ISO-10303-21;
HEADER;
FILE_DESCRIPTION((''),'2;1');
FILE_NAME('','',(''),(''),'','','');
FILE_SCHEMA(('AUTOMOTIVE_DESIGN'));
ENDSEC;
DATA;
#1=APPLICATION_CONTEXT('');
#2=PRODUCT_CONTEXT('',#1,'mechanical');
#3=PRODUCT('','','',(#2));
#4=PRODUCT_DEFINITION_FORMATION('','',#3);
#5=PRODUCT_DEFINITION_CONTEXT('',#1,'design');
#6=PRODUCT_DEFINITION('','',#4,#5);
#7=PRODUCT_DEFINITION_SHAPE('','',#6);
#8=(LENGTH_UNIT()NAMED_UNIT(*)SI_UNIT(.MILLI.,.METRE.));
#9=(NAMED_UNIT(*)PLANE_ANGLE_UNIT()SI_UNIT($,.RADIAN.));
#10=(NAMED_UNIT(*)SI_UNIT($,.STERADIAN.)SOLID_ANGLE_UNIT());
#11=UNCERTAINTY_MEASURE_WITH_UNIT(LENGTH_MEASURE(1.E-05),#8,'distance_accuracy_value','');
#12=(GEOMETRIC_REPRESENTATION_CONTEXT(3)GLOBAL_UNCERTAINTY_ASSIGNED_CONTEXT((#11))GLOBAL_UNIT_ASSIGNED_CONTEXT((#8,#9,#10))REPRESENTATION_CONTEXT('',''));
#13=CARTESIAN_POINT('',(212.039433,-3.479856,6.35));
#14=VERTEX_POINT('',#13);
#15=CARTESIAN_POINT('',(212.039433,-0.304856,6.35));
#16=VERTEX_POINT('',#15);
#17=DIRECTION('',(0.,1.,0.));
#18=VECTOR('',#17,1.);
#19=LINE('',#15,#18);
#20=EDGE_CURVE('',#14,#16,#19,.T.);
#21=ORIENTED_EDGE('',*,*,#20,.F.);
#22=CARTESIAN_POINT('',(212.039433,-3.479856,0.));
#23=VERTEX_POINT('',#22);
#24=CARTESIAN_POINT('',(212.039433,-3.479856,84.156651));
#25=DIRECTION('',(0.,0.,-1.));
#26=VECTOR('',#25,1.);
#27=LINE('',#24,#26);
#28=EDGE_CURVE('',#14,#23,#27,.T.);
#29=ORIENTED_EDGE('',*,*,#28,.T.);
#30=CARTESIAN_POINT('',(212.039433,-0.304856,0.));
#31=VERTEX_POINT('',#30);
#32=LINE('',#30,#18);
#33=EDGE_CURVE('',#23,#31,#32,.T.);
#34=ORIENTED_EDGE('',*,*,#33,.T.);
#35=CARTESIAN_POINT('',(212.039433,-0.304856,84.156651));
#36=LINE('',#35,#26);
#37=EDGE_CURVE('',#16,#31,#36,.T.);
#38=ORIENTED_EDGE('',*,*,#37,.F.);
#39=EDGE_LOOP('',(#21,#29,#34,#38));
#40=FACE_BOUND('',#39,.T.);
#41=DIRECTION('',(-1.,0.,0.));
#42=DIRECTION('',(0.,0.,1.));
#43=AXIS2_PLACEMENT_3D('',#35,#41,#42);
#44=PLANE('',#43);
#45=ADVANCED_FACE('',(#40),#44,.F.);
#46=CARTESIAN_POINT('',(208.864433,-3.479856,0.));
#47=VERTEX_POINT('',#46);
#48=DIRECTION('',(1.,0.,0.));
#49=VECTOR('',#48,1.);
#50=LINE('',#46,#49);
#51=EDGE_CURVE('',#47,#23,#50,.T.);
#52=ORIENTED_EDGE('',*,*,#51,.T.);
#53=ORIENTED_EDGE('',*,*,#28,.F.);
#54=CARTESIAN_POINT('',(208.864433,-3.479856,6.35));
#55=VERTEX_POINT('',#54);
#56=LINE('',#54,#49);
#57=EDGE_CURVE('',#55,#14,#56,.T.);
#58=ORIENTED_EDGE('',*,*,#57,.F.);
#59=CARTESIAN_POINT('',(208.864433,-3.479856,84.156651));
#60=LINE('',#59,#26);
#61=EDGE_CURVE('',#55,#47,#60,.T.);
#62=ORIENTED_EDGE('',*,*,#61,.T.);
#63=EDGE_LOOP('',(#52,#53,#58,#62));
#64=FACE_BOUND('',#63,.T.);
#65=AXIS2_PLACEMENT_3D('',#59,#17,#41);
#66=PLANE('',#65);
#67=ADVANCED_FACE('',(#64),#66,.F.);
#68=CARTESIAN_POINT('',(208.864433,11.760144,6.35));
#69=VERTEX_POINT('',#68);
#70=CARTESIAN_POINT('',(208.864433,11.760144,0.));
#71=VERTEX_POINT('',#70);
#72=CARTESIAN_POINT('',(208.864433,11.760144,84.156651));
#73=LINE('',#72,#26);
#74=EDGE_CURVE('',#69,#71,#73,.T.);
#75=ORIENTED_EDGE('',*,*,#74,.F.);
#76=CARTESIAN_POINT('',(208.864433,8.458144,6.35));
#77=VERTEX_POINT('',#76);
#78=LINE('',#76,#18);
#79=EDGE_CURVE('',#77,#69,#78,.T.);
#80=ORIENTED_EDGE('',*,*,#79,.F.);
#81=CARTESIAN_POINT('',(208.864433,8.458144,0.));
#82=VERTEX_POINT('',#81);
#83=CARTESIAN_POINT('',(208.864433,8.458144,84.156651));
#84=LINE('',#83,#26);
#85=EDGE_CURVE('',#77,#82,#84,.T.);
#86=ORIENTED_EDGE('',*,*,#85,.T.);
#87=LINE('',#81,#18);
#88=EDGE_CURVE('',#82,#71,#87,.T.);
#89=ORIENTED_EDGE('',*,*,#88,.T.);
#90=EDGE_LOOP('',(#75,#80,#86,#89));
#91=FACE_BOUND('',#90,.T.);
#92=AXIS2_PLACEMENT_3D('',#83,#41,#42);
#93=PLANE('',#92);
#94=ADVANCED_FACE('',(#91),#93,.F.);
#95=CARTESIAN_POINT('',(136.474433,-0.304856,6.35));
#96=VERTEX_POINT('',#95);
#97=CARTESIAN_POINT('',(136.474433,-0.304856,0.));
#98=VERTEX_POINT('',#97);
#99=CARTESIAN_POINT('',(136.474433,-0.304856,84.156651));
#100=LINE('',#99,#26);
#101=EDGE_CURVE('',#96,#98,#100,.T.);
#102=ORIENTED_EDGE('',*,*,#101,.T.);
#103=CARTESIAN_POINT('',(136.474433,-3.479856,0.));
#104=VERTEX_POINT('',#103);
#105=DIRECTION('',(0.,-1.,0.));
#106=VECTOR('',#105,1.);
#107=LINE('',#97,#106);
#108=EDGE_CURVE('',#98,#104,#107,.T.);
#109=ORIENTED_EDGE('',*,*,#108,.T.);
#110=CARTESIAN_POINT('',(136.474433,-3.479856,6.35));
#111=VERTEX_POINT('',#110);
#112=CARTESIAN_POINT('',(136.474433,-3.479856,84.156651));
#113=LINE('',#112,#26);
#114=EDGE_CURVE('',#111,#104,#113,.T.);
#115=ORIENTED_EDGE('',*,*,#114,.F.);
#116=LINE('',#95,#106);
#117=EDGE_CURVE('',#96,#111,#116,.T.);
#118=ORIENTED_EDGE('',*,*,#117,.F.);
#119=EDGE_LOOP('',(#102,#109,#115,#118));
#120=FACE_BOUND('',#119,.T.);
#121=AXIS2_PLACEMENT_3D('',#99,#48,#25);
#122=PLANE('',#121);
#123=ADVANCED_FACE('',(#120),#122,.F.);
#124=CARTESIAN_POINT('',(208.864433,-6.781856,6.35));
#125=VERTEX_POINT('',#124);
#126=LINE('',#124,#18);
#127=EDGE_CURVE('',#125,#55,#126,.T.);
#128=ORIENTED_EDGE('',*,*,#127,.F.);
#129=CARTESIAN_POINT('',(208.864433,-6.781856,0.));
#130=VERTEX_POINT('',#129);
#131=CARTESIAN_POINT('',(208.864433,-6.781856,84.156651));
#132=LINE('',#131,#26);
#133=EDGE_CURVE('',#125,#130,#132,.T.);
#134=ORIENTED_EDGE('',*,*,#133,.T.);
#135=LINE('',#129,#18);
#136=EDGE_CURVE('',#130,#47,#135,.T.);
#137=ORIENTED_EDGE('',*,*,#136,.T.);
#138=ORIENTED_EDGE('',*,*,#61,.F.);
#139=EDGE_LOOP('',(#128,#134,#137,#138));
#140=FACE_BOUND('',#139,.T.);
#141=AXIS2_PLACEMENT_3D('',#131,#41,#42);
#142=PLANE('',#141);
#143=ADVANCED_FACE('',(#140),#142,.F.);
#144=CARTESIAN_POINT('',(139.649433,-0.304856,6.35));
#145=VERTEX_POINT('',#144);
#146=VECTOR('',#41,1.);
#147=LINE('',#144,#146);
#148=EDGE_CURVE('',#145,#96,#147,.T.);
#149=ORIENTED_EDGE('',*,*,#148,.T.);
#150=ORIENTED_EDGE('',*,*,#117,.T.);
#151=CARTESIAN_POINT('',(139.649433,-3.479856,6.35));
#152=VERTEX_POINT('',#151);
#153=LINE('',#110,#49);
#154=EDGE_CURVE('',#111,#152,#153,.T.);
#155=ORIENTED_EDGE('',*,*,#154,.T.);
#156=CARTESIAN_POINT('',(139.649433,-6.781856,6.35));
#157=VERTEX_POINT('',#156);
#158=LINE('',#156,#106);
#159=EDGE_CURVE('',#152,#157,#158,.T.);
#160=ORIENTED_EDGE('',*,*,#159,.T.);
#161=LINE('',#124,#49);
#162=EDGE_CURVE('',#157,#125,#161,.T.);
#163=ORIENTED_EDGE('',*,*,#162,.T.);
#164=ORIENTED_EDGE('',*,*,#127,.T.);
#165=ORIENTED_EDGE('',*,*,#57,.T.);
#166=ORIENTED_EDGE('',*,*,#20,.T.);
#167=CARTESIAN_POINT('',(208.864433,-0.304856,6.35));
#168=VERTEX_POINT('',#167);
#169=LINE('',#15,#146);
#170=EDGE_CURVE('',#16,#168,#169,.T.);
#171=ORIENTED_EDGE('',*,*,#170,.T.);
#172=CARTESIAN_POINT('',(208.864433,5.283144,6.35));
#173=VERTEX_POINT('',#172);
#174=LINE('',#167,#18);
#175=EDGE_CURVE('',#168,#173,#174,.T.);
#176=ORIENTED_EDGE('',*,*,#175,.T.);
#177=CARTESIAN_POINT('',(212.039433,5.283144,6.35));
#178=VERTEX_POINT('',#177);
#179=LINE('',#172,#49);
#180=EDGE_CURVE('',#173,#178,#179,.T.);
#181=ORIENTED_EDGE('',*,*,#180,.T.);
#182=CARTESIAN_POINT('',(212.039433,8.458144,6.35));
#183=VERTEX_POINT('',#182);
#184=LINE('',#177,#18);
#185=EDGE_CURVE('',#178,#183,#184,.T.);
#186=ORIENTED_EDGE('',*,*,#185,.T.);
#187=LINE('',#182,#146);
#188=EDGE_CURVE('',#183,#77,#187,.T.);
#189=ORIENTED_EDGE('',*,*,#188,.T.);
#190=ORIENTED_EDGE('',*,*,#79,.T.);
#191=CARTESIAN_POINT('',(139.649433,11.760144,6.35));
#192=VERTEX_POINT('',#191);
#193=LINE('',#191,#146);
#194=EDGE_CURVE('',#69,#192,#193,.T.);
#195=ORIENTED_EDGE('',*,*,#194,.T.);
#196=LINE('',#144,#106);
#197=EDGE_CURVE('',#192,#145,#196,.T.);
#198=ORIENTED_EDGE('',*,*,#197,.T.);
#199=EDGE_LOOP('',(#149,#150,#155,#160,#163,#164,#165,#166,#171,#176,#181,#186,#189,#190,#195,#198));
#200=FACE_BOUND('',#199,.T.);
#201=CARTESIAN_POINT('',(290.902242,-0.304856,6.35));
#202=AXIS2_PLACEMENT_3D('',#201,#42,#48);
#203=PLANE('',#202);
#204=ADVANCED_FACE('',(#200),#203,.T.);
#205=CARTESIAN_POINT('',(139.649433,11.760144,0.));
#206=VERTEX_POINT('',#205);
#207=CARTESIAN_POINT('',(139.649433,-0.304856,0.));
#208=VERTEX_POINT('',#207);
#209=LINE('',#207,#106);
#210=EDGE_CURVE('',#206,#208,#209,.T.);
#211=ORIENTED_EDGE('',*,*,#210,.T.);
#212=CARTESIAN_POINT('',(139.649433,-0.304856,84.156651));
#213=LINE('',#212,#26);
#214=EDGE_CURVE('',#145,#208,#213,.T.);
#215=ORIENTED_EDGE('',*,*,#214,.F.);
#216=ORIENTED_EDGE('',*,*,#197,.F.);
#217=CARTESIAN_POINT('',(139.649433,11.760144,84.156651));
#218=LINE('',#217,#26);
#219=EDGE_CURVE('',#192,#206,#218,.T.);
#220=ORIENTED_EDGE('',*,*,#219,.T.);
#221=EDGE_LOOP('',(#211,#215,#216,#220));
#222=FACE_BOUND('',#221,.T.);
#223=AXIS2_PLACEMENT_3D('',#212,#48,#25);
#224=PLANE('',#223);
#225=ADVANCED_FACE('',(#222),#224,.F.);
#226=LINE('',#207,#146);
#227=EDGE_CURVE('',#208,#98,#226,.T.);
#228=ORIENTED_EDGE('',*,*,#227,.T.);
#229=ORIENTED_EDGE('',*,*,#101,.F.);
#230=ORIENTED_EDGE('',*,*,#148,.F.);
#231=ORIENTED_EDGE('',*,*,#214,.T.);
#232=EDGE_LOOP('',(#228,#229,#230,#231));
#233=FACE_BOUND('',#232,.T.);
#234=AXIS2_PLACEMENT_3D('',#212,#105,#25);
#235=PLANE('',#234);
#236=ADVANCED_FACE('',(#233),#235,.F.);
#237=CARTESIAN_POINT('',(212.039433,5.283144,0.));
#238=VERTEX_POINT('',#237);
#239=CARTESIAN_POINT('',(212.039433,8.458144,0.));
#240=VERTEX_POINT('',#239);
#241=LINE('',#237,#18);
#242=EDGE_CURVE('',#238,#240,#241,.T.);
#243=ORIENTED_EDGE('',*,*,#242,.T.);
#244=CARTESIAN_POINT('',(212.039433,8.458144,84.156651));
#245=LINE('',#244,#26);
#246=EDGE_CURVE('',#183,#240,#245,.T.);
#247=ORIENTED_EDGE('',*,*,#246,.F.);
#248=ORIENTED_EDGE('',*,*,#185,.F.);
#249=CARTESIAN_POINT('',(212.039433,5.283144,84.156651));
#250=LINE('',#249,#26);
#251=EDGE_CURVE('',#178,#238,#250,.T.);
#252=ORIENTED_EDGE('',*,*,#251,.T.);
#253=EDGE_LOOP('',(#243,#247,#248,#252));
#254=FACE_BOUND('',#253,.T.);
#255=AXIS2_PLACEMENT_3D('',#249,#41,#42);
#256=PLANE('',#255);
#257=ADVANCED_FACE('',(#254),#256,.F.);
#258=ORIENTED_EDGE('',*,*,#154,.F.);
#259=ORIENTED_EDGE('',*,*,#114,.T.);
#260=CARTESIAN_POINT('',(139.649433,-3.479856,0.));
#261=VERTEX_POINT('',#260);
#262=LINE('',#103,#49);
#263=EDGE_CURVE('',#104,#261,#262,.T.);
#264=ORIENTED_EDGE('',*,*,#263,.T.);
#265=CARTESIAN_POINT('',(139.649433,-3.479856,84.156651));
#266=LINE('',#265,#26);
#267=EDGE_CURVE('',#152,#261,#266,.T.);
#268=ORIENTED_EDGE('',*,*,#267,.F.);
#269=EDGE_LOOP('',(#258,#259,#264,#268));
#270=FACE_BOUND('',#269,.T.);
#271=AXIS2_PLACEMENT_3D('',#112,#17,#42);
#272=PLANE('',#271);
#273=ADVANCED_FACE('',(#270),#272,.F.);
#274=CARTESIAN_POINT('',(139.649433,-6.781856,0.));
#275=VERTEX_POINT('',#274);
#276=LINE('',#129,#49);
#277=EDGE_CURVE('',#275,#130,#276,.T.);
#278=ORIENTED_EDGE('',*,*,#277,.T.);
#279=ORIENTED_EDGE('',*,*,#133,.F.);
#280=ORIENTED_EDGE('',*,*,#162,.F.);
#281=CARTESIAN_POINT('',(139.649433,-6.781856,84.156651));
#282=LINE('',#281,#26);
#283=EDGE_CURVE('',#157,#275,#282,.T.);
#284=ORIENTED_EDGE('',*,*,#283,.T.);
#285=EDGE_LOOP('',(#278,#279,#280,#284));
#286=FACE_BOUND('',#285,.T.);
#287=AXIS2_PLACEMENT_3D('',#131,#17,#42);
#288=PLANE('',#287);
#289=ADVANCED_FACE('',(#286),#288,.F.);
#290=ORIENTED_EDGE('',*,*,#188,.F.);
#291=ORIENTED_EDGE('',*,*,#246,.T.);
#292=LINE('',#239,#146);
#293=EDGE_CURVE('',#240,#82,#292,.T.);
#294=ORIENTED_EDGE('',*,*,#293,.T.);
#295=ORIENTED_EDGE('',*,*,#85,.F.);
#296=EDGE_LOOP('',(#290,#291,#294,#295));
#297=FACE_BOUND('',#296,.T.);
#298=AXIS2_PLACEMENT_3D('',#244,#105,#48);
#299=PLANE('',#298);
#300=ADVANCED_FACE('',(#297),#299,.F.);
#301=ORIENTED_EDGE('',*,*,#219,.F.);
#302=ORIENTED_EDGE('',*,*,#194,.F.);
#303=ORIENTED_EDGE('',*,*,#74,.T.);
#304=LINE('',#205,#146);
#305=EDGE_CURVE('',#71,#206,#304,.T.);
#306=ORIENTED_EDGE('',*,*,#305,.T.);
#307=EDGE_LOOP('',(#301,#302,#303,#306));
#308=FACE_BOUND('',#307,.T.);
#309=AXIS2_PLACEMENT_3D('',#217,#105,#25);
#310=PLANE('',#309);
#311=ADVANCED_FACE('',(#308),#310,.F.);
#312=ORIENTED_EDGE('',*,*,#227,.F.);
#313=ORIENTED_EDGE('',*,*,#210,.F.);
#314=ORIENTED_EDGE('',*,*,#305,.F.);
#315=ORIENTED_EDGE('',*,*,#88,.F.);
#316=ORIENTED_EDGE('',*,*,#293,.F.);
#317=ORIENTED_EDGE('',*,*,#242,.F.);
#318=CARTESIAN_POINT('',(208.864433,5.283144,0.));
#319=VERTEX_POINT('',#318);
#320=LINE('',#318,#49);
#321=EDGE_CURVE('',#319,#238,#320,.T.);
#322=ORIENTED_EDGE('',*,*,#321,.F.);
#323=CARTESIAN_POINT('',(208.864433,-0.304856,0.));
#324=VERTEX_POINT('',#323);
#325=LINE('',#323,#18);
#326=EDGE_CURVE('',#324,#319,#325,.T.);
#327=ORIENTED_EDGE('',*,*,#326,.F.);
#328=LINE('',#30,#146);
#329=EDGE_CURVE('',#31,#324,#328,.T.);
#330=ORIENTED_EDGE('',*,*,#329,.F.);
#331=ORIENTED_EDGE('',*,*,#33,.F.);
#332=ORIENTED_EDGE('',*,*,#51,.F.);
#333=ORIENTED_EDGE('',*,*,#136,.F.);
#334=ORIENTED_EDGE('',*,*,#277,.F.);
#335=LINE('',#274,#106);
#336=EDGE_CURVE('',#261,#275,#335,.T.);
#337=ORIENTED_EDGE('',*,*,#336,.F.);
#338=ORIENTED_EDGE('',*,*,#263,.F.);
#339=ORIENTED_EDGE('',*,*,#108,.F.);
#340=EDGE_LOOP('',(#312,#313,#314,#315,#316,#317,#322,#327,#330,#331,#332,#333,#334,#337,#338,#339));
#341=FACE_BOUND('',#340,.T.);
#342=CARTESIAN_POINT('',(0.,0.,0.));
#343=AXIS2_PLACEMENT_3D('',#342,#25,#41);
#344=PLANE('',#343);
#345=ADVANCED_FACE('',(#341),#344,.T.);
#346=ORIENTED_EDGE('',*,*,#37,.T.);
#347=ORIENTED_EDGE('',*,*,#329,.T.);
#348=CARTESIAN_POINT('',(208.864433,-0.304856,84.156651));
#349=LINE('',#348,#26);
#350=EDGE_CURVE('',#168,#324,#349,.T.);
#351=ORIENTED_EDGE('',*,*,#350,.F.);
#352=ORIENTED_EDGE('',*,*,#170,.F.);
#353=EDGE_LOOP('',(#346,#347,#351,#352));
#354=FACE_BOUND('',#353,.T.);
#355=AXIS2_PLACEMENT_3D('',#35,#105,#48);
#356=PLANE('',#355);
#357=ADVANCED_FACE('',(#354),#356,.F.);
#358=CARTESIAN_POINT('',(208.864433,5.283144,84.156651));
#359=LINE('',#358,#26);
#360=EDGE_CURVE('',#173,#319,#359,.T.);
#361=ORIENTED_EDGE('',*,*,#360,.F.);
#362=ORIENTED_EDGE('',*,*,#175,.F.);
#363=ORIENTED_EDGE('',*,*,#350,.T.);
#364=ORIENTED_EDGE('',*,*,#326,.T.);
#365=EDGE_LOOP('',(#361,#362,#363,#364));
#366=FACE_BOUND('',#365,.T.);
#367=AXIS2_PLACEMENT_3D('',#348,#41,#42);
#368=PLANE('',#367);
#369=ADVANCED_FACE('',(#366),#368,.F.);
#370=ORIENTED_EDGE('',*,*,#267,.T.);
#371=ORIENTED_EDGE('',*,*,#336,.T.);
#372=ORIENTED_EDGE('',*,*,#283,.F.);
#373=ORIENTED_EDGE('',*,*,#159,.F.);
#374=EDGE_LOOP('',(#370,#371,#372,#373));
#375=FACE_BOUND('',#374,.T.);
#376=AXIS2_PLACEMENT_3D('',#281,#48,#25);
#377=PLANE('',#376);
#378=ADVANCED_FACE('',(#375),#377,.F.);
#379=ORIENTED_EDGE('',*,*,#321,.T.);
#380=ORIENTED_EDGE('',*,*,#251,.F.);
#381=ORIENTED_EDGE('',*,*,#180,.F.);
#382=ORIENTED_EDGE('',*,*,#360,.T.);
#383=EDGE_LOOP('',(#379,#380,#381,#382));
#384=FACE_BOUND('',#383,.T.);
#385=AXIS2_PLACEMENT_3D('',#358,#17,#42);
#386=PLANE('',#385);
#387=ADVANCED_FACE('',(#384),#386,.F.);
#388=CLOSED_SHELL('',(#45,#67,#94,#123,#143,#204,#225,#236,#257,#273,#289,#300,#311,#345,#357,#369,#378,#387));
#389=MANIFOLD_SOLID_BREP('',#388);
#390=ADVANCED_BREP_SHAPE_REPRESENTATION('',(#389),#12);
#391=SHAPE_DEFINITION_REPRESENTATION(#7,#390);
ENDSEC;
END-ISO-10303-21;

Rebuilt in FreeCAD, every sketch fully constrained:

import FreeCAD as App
import Part
import Sketcher
Q = App.Units.Quantity


def add_polygon(sketch, points):
    """Adds a closed chain of lines whose ends are joined by coincident constraints."""
    first, n = sketch.GeometryCount, len(points)
    for a, b in zip(points, points[1:] + points[:1]):
        sketch.addGeometry(Part.LineSegment(App.Vector(*a, 0), App.Vector(*b, 0)), False)
    for i in range(n):
        sketch.addConstraint(Sketcher.Constraint("Coincident", first + i, 2, first + (i + 1) % n, 1))

doc = App.newDocument("Part")
body = doc.addObject("PartDesign::Body", "Body")

# Sketch on XY plane
sketch1 = body.newObject("Sketcher::SketchObject", "Sketch")
sketch1.AttachmentSupport = (doc.getObject("XY_Plane"), [""])
sketch1.MapMode = "FlatFace"
add_polygon(sketch1, [(208.9, -3.5), (212, -3.5), (212, -0.3), (208.9, -0.3), (208.9, 5.3), (212, 5.3), (212, 8.5), (208.9, 8.5), (208.9, 11.8), (139.6, 11.8), (139.6, -0.3), (136.5, -0.3), (136.5, -3.5), (139.6, -3.5), (139.6, -6.8), (208.9, -6.8)])  # lines 0-15
sketch1.addConstraint([
    Sketcher.Constraint("Horizontal", 0),
    Sketcher.Constraint("Vertical", 1),
    Sketcher.Constraint("Horizontal", 2),
    Sketcher.Constraint("Vertical", 3),
    Sketcher.Constraint("Horizontal", 4),
    Sketcher.Constraint("Vertical", 5),
    Sketcher.Constraint("Horizontal", 6),
    Sketcher.Constraint("Vertical", 7),
    Sketcher.Constraint("Horizontal", 8),
    Sketcher.Constraint("Vertical", 9),
    Sketcher.Constraint("Horizontal", 10),
    Sketcher.Constraint("Vertical", 11),
    Sketcher.Constraint("Horizontal", 12),
    Sketcher.Constraint("Vertical", 13),
    Sketcher.Constraint("Horizontal", 14),
    Sketcher.Constraint("Vertical", 15),
    Sketcher.Constraint("Horizontal", 2, 2, 9, 2),
    Sketcher.Constraint("Horizontal", 0, 2, 11, 2),
    Sketcher.Constraint("Vertical", 1, 2, 4, 2),
    Sketcher.Constraint("Vertical", 3, 2, 6, 2),
    Sketcher.Constraint("Vertical", 9, 2, 12, 2),
    Sketcher.Constraint("Vertical", 7, 2, 14, 2),
    Sketcher.Constraint("Equal", 6, 10),
    Sketcher.Constraint("Equal", 12, 1),
    Sketcher.Constraint("Equal", 1, 5),
    Sketcher.Constraint("Equal", 7, 13),
    Sketcher.Constraint("DistanceY", 3, 1, 3, 2, Q("0.22 in")),
    Sketcher.Constraint("DistanceY", 7, 1, 7, 2, Q("0.13 in")),
    Sketcher.Constraint("DistanceY", 11, 2, 8, 2, Q("0.6 in")),
    Sketcher.Constraint("DistanceX", 8, 2, 8, 1, Q("2.725 in")),
    Sketcher.Constraint("DistanceX", -1, 1, 0, 2, 212.039433),
    Sketcher.Constraint("DistanceY", 0, 2, -1, 1, 3.479856),
])
pad1 = body.newObject("PartDesign::Pad", "Pad")
pad1.Profile = sketch1
pad1.Length = Q("0.25 in")

doc.recompute()
